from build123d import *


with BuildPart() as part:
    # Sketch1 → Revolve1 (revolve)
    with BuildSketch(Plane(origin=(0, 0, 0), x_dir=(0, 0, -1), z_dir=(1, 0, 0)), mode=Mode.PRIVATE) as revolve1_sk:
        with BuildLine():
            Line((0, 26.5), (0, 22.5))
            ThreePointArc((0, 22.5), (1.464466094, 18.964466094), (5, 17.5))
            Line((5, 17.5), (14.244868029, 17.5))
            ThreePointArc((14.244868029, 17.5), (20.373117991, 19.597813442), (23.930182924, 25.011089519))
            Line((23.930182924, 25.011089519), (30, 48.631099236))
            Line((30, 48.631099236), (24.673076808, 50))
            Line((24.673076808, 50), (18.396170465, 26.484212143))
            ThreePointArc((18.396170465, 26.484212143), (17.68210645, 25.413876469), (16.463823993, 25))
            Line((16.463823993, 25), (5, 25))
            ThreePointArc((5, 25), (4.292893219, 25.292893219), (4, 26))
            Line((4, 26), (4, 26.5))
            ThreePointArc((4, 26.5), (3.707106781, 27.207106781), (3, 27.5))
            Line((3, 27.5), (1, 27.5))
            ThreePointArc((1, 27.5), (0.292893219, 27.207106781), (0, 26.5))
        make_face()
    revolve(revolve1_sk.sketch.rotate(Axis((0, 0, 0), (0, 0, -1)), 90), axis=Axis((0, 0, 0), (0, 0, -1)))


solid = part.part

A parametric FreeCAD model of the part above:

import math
import FreeCAD as App
import Part
import Sketcher
from FreeCAD import Vector
Q = App.Units.Quantity

doc = App.newDocument("Part")
body = doc.addObject("PartDesign::Body", "Body")

# Sketch on YZ plane
sketch1 = body.newObject("Sketcher::SketchObject", "Sketch")
sketch1.AttachmentSupport = (doc.getObject("YZ_Plane"), [""])
sketch1.MapMode = "FlatFace"
sketch1.addGeometry([
    Part.LineSegment(Vector(26.5, 0, 0), Vector(22.5, 0, 0)),  # 0
    Part.ArcOfCircle(Part.Circle(Vector(22.5, -5, 0), Vector(0, 0, 1), 5), math.radians(90), math.radians(180)),  # 1
    Part.LineSegment(Vector(17.5, -5, 0), Vector(17.5, -14.2, 0)),  # 2
    Part.ArcOfCircle(Part.Circle(Vector(27.5, -14.2, 0), Vector(0, 0, 1), 10), math.radians(-180), math.radians(-104)),  # 3
    Part.LineSegment(Vector(25, -23.9, 0), Vector(48.6, -30, 0)),  # 4
    Part.LineSegment(Vector(48.6, -30, 0), Vector(50, -24.7, 0)),  # 5
    Part.LineSegment(Vector(50, -24.7, 0), Vector(26.5, -18.4, 0)),  # 6
    Part.ArcOfCircle(Part.Circle(Vector(27, -16.5, 0), Vector(0, 0, 1), 2), math.radians(180), math.radians(255)),  # 7
    Part.LineSegment(Vector(25, -16.5, 0), Vector(25, -5, 0)),  # 8
    Part.ArcOfCircle(Part.Circle(Vector(26, -5, 0), Vector(0, 0, 1), 1), math.radians(90), math.radians(180)),  # 9
    Part.LineSegment(Vector(26, -4, 0), Vector(26.5, -4, 0)),  # 10
    Part.ArcOfCircle(Part.Circle(Vector(26.5, -3, 0), Vector(0, 0, 1), 1), math.radians(-90), math.radians(0)),  # 11
    Part.LineSegment(Vector(27.5, -3, 0), Vector(27.5, -1, 0)),  # 12
    Part.ArcOfCircle(Part.Circle(Vector(26.5, -1, 0), Vector(0, 0, 1), 1), math.radians(0), math.radians(90)),  # 13
], False)
sketch1.addConstraint([
    Sketcher.Constraint("Tangent", 0, 2, 1, 1),
    Sketcher.Constraint("Tangent", 1, 2, 2, 1),
    Sketcher.Constraint("Tangent", 2, 2, 3, 1),
    Sketcher.Constraint("Tangent", 3, 2, 4, 1),
    Sketcher.Constraint("Coincident", 4, 2, 5, 1),
    Sketcher.Constraint("Coincident", 5, 2, 6, 1),
    Sketcher.Constraint("Tangent", 6, 2, 7, 2),
    Sketcher.Constraint("Tangent", 7, 1, 8, 1),
    Sketcher.Constraint("Tangent", 8, 2, 9, 2),
    Sketcher.Constraint("Tangent", 9, 1, 10, 1),
    Sketcher.Constraint("Tangent", 10, 2, 11, 1),
    Sketcher.Constraint("Tangent", 11, 2, 12, 1),
    Sketcher.Constraint("Tangent", 12, 2, 13, 1),
    Sketcher.Constraint("Tangent", 13, 2, 0, 1),
    Sketcher.Constraint("Horizontal", 0),
    Sketcher.Constraint("Vertical", 2),
    Sketcher.Constraint("Vertical", 8),
    Sketcher.Constraint("Horizontal", 10),
    Sketcher.Constraint("Vertical", 12),
    Sketcher.Constraint("Equal", 9, 11),
    Sketcher.Constraint("Equal", 11, 13),
    Sketcher.Constraint("PointOnObject", 0, 2, -1),
    Sketcher.Constraint("Perpendicular", 4, 5),
    Sketcher.Constraint("Horizontal", 1, 3, 9, 3),
    Sketcher.Constraint("Vertical", 3, 3, 11, 2),
    Sketcher.Constraint("Radius", 1, Q("5 mm")),
    Sketcher.Constraint("Radius", 3, Q("10 mm")),
    Sketcher.Constraint("Radius", 7, Q("2 mm")),
    Sketcher.Constraint("Radius", 9, Q("1 mm")),
    Sketcher.Constraint("DistanceX", 10, 1, 10, 2, Q("0.5 mm")),
    Sketcher.Constraint("DistanceX", -1, 1, 7, 3, Q("27 mm")),
    Sketcher.Constraint("DistanceY", 4, 2, -1, 1, Q("30 mm")),
    Sketcher.Constraint("DistanceX", -1, 1, 5, 2, Q("50 mm")),
    Sketcher.Constraint("Distance", 5, Q("5.5 mm")),
    Sketcher.Constraint("Distance", 6, Q("24.339101 mm")),
    Sketcher.Constraint("DistanceY", 2, 2, 2, 1, Q("9.244868 mm")),
])
revolution = body.newObject("PartDesign::Revolution", "Revolution")
revolution.Profile = sketch1
revolution.ReferenceAxis = (sketch1, ["V_Axis"])
revolution.Angle = 360

doc.recompute()
